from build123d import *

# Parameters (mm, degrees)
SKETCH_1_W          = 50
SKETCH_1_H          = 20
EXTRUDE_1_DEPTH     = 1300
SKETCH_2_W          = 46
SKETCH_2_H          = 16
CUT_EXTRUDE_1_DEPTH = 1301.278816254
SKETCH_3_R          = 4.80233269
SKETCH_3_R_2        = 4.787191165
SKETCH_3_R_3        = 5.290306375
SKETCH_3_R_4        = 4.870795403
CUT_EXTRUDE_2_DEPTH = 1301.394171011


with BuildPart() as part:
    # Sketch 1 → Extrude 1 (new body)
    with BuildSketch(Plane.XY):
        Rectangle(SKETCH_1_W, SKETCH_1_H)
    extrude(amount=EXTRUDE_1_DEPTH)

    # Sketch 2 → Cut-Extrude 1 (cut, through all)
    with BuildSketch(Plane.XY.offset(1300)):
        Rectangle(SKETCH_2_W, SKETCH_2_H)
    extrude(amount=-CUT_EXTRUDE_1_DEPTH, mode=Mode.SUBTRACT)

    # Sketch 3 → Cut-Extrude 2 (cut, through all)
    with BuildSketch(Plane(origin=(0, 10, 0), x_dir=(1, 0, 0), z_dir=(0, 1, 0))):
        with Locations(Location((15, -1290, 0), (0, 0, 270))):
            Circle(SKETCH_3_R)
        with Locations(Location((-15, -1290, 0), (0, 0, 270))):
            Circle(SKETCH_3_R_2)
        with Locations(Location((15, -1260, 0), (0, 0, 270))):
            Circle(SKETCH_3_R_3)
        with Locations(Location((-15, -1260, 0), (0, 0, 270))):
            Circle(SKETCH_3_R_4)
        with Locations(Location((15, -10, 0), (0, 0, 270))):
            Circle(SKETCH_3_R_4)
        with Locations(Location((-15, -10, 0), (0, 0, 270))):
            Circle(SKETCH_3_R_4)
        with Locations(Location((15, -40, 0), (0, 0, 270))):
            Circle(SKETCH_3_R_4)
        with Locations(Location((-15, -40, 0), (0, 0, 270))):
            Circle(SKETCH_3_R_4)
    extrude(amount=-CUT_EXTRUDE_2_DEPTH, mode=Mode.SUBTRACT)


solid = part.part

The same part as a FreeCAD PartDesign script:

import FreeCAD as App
import Part
import Sketcher

V = App.Vector


def add_polygon(sketch, points):
    """Adds a closed chain of lines whose ends are joined by coincident constraints."""
    first, n = sketch.GeometryCount, len(points)
    for a, b in zip(points, points[1:] + points[:1]):
        sketch.addGeometry(Part.LineSegment(App.Vector(*a, 0), App.Vector(*b, 0)), False)
    for i in range(n):
        sketch.addConstraint(Sketcher.Constraint("Coincident", first + i, 2, first + (i + 1) % n, 1))

doc = App.newDocument("Part")
body = doc.addObject("PartDesign::Body", "Body")

# Sketch on XY plane
sketch1 = body.newObject("Sketcher::SketchObject", "Sketch")
sketch1.AttachmentSupport = (doc.getObject("XY_Plane"), [""])
sketch1.MapMode = "FlatFace"
add_polygon(sketch1, [(-25, 10), (-25, -10), (25, -10), (25, 10)])  # lines 0-3
sketch1.addConstraint(Sketcher.Constraint("Vertical", 0))
sketch1.addConstraint(Sketcher.Constraint("Horizontal", 1))
sketch1.addConstraint(Sketcher.Constraint("Vertical", 2))
sketch1.addConstraint(Sketcher.Constraint("Horizontal", 3))
sketch1.addConstraint(Sketcher.Constraint("Symmetric", 0, 2, 2, 2, -1, 1))
sketch1.addConstraint(Sketcher.Constraint("DistanceX", 1, 1, 1, 2, 50.0))
sketch1.addConstraint(Sketcher.Constraint("DistanceY", 0, 2, 0, 1, 20.0))
pad1 = body.newObject("PartDesign::Pad", "Pad")
pad1.Profile = sketch1
pad1.Length = 1300

# Sketch on XY plane
sketch2 = body.newObject("Sketcher::SketchObject", "Sketch001")
sketch2.AttachmentSupport = (doc.getObject("XY_Plane"), [""])
sketch2.MapMode = "FlatFace"
sketch2.AttachmentOffset = App.Placement(V(0, 0, 1300), App.Rotation())
add_polygon(sketch2, [(-23, 8), (-23, -8), (23, -8), (23, 8)])  # lines 0-3
sketch2.addConstraint(Sketcher.Constraint("Vertical", 0))
sketch2.addConstraint(Sketcher.Constraint("Horizontal", 1))
sketch2.addConstraint(Sketcher.Constraint("Vertical", 2))
sketch2.addConstraint(Sketcher.Constraint("Horizontal", 3))
sketch2.addConstraint(Sketcher.Constraint("Symmetric", 0, 2, 2, 2, -1, 1))
sketch2.addConstraint(Sketcher.Constraint("DistanceX", 1, 1, 1, 2, 46.0))
sketch2.addConstraint(Sketcher.Constraint("DistanceY", 0, 2, 0, 1, 16.0))
pocket1 = body.newObject("PartDesign::Pocket", "Pocket")
pocket1.Profile = sketch2
pocket1.Type = "ThroughAll"

# Sketch on XZ plane
sketch3 = body.newObject("Sketcher::SketchObject", "Sketch002")
sketch3.AttachmentSupport = (doc.getObject("XZ_Plane"), [""])
sketch3.MapMode = "FlatFace"
sketch3.AttachmentOffset = App.Placement(V(0, 0, -10), App.Rotation())
sketch3.addGeometry(Part.Circle(V(15, 1290, 0), V(0, 0, 1), 4.8), False)
sketch3.addGeometry(Part.Circle(V(-15, 1290, 0), V(0, 0, 1), 4.8), False)
sketch3.addGeometry(Part.Circle(V(15, 1260, 0), V(0, 0, 1), 5.3), False)
sketch3.addGeometry(Part.Circle(V(-15, 1260, 0), V(0, 0, 1), 4.9), False)
sketch3.addGeometry(Part.Circle(V(15, 10, 0), V(0, 0, 1), 4.9), False)
sketch3.addGeometry(Part.Circle(V(-15, 10, 0), V(0, 0, 1), 4.9), False)
sketch3.addGeometry(Part.Circle(V(15, 40, 0), V(0, 0, 1), 4.9), False)
sketch3.addGeometry(Part.Circle(V(-15, 40, 0), V(0, 0, 1), 4.9), False)
sketch3.addConstraint(Sketcher.Constraint("Equal", 3, 4))
sketch3.addConstraint(Sketcher.Constraint("Equal", 4, 5))
sketch3.addConstraint(Sketcher.Constraint("Equal", 5, 6))
sketch3.addConstraint(Sketcher.Constraint("Equal", 6, 7))
sketch3.addConstraint(Sketcher.Constraint("Symmetric", 0, 3, 1, 3, -2))
sketch3.addConstraint(Sketcher.Constraint("Symmetric", 2, 3, 3, 3, -2))
sketch3.addConstraint(Sketcher.Constraint("Symmetric", 4, 3, 5, 3, -2))
sketch3.addConstraint(Sketcher.Constraint("Symmetric", 6, 3, 7, 3, -2))
sketch3.addConstraint(Sketcher.Constraint("Vertical", 0, 3, 2, 3))
sketch3.addConstraint(Sketcher.Constraint("Vertical", 2, 3, 4, 3))
sketch3.addConstraint(Sketcher.Constraint("Vertical", 4, 3, 6, 3))
sketch3.addConstraint(Sketcher.Constraint("DistanceX", -1, 1, 0, 3, 15.0))
sketch3.addConstraint(Sketcher.Constraint("DistanceY", -1, 1, 0, 3, 1290.0))
sketch3.addConstraint(Sketcher.Constraint("DistanceY", -1, 1, 2, 3, 1260.0))
sketch3.addConstraint(Sketcher.Constraint("DistanceY", -1, 1, 4, 3, 10.0))
sketch3.addConstraint(Sketcher.Constraint("DistanceY", -1, 1, 6, 3, 40.0))
sketch3.addConstraint(Sketcher.Constraint("Diameter", 3, 9.741591))
sketch3.addConstraint(Sketcher.Constraint("Diameter", 0, 9.604665))
sketch3.addConstraint(Sketcher.Constraint("Diameter", 1, 9.574382))
sketch3.addConstraint(Sketcher.Constraint("Diameter", 2, 10.580613))
pocket2 = body.newObject("PartDesign::Pocket", "Pocket001")
pocket2.Profile = sketch3
pocket2.Type = "ThroughAll"
pocket2.Reversed = True

doc.recompute()
